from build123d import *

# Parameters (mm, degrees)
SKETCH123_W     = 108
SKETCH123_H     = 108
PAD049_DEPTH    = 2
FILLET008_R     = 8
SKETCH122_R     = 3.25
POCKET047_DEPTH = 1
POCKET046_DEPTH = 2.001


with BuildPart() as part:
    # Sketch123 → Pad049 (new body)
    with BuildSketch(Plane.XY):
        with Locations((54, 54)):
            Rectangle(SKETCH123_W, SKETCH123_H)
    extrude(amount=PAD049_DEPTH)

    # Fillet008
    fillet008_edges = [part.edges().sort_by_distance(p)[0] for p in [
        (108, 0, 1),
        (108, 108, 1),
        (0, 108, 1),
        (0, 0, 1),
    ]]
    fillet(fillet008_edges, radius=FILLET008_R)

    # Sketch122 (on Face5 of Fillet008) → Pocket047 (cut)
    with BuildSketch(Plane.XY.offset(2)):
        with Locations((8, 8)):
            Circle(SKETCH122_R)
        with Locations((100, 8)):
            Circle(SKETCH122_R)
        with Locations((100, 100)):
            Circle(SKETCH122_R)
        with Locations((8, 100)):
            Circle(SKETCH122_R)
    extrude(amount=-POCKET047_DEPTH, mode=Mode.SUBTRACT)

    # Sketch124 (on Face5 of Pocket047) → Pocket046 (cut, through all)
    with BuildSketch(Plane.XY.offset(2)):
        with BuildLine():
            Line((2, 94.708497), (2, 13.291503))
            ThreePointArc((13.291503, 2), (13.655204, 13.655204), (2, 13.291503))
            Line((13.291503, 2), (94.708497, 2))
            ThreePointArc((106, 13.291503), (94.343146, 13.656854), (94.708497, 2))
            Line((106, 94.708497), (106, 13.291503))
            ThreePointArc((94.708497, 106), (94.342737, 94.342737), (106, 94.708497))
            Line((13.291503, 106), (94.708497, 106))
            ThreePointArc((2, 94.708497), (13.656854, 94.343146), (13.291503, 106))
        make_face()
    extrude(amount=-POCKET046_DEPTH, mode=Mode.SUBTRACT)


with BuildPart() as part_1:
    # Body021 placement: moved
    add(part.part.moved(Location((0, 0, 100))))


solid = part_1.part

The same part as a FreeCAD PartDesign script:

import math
import FreeCAD as App
import Part
import Sketcher
Q = App.Units.Quantity


def edges_at(feature, points):
    """Names of the edges that pass closest to the given points."""
    edges = feature.Shape.Edges
    near = lambda p: min(range(len(edges)), key=lambda i: edges[i].distToShape(Part.Vertex(*p))[0])
    return sorted({f"Edge{near(p) + 1}" for p in points})


def add_polygon(sketch, points):
    """Adds a closed chain of lines whose ends are joined by coincident constraints."""
    first, n = sketch.GeometryCount, len(points)
    for a, b in zip(points, points[1:] + points[:1]):
        sketch.addGeometry(Part.LineSegment(App.Vector(*a, 0), App.Vector(*b, 0)), False)
    for i in range(n):
        sketch.addConstraint(Sketcher.Constraint("Coincident", first + i, 2, first + (i + 1) % n, 1))

doc = App.newDocument("Part")
body = doc.addObject("PartDesign::Body", "Body")

sketch1 = body.newObject("Sketcher::SketchObject", "Sketch")
sketch1.AttachmentSupport = (doc.getObject("XY_Plane"), [""])
sketch1.MapMode = "FlatFace"
add_polygon(sketch1, [(0, 108), (0, 0), (108, 0), (108, 108)])
sketch1.addConstraint([
    Sketcher.Constraint("Vertical", 0),
    Sketcher.Constraint("Horizontal", 1),
    Sketcher.Constraint("Vertical", 2),
    Sketcher.Constraint("Horizontal", 3),
    Sketcher.Constraint("Coincident", 0, 2, -1, 1),
    Sketcher.Constraint("Equal", 3, 0),
    Sketcher.Constraint("DistanceX", 1, 1, 1, 2, Q("108 mm")),
])
pad1 = body.newObject("PartDesign::Pad", "Pad")
pad1.Profile = sketch1
pad1.Length = 2
doc.recompute()

fillet = body.newObject("PartDesign::Fillet", "Fillet")
fillet.Base = (pad1, edges_at(pad1, [
    (108, 0, 1),
    (108, 108, 1),
    (0, 108, 1),
    (0, 0, 1),
]))
fillet.Radius = 8

sketch2 = body.newObject("Sketcher::SketchObject", "Sketch001")
sketch2.AttachmentSupport = (doc.getObject("XY_Plane"), [""])
sketch2.MapMode = "FlatFace"
sketch2.AttachmentOffset = App.Placement(App.Vector(0, 0, 2), App.Rotation())
sketch2.addGeometry([
    Part.Circle(App.Vector(8, 8, 0), App.Vector(0, 0, 1), 3.2),
    Part.Circle(App.Vector(100, 8, 0), App.Vector(0, 0, 1), 3.2),
    Part.Circle(App.Vector(100, 100, 0), App.Vector(0, 0, 1), 3.2),
    Part.Circle(App.Vector(8, 100, 0), App.Vector(0, 0, 1), 3.2),
], False)
sketch2.addConstraint([
    Sketcher.Constraint("Equal", 0, 1),
    Sketcher.Constraint("Equal", 1, 2),
    Sketcher.Constraint("Equal", 2, 3),
    Sketcher.Constraint("Horizontal", 0, 3, 1, 3),
    Sketcher.Constraint("Horizontal", 2, 3, 3, 3),
    Sketcher.Constraint("Vertical", 1, 3, 2, 3),
    Sketcher.Constraint("Vertical", 0, 3, 3, 3),
    Sketcher.Constraint("Diameter", 0, Q("6.5 mm")),
    Sketcher.Constraint("DistanceX", -1, 1, 0, 3, Q("8 mm")),
    Sketcher.Constraint("DistanceY", -1, 1, 0, 3, Q("8 mm")),
    Sketcher.Constraint("DistanceX", -1, 1, 1, 3, Q("100 mm")),
    Sketcher.Constraint("DistanceY", -1, 1, 2, 3, Q("100 mm")),
])
pocket1 = body.newObject("PartDesign::Pocket", "Pocket")
pocket1.Profile = sketch2
pocket1.Length = 1

sketch3 = body.newObject("Sketcher::SketchObject", "Sketch002")
sketch3.AttachmentSupport = (doc.getObject("XY_Plane"), [""])
sketch3.MapMode = "FlatFace"
sketch3.AttachmentOffset = App.Placement(App.Vector(0, 0, 2), App.Rotation())
sketch3.addGeometry([
    Part.LineSegment(App.Vector(2, 95, 0), App.Vector(2, 13, 0)),
    Part.ArcOfCircle(Part.Circle(App.Vector(8, 8, 0), App.Vector(0, 0, 1), 8), math.radians(-49), math.radians(139)),
    Part.LineSegment(App.Vector(13, 2, 0), App.Vector(95, 2, 0)),
    Part.ArcOfCircle(Part.Circle(App.Vector(100, 8, 0), App.Vector(0, 0, 1), 8), math.radians(41), math.radians(229)),
    Part.LineSegment(App.Vector(106, 13, 0), App.Vector(106, 95, 0)),
    Part.ArcOfCircle(Part.Circle(App.Vector(100, 100, 0), App.Vector(0, 0, 1), 8), math.radians(131), math.radians(319)),
    Part.LineSegment(App.Vector(95, 106, 0), App.Vector(13, 106, 0)),
    Part.ArcOfCircle(Part.Circle(App.Vector(8, 100, 0), App.Vector(0, 0, 1), 8), math.radians(-139), math.radians(49)),
], False)
sketch3.addConstraint([
    Sketcher.Constraint("Coincident", 0, 2, 1, 2),
    Sketcher.Constraint("Coincident", 1, 1, 2, 1),
    Sketcher.Constraint("Coincident", 2, 2, 3, 2),
    Sketcher.Constraint("Coincident", 3, 1, 4, 1),
    Sketcher.Constraint("Coincident", 4, 2, 5, 2),
    Sketcher.Constraint("Coincident", 5, 1, 6, 1),
    Sketcher.Constraint("Coincident", 6, 2, 7, 2),
    Sketcher.Constraint("Coincident", 7, 1, 0, 1),
    Sketcher.Constraint("Vertical", 0),
    Sketcher.Constraint("Horizontal", 2),
    Sketcher.Constraint("Vertical", 4),
    Sketcher.Constraint("Horizontal", 6),
    Sketcher.Constraint("Equal", 3, 7),
    Sketcher.Constraint("Horizontal", 0, 2, 3, 1),
    Sketcher.Constraint("Horizontal", 4, 2, 7, 1),
    Sketcher.Constraint("Vertical", 2, 2, 5, 1),
    Sketcher.Constraint("Vertical", 1, 1, 6, 2),
    Sketcher.Constraint("Equal", 6, 0),
    Sketcher.Constraint("Radius", 3, Q("8 mm")),
    Sketcher.Constraint("DistanceX", -1, 1, 3, 3, Q("100 mm")),
    Sketcher.Constraint("DistanceY", -1, 1, 3, 3, Q("8 mm")),
    Sketcher.Constraint("DistanceX", -1, 1, 7, 3, Q("8 mm")),
    Sketcher.Constraint("DistanceY", -1, 1, 7, 3, Q("100 mm")),
    Sketcher.Constraint("DistanceX", -1, 1, 0, 2, Q("2 mm")),
    Sketcher.Constraint("DistanceY", -1, 1, 1, 1, Q("2 mm")),
    Sketcher.Constraint("DistanceX", -1, 1, 3, 1, Q("106 mm")),
    Sketcher.Constraint("Radius", 1, Q("7.999863 mm")),
    Sketcher.Constraint("Radius", 5, Q("8.000034 mm")),
])
pocket2 = body.newObject("PartDesign::Pocket", "Pocket001")
pocket2.Profile = sketch3
pocket2.Type = "ThroughAll"
body2 = doc.addObject("PartDesign::Body", "Body001")
doc.recompute()

body.Placement = App.Placement(App.Vector(0, 0, 100), App.Rotation(App.Vector(0, 0, 1), 0))
boolean = body2.newObject("PartDesign::Boolean", "Boolean")
boolean.Type = "Fuse"
boolean.addObjects([body])

doc.recompute()
